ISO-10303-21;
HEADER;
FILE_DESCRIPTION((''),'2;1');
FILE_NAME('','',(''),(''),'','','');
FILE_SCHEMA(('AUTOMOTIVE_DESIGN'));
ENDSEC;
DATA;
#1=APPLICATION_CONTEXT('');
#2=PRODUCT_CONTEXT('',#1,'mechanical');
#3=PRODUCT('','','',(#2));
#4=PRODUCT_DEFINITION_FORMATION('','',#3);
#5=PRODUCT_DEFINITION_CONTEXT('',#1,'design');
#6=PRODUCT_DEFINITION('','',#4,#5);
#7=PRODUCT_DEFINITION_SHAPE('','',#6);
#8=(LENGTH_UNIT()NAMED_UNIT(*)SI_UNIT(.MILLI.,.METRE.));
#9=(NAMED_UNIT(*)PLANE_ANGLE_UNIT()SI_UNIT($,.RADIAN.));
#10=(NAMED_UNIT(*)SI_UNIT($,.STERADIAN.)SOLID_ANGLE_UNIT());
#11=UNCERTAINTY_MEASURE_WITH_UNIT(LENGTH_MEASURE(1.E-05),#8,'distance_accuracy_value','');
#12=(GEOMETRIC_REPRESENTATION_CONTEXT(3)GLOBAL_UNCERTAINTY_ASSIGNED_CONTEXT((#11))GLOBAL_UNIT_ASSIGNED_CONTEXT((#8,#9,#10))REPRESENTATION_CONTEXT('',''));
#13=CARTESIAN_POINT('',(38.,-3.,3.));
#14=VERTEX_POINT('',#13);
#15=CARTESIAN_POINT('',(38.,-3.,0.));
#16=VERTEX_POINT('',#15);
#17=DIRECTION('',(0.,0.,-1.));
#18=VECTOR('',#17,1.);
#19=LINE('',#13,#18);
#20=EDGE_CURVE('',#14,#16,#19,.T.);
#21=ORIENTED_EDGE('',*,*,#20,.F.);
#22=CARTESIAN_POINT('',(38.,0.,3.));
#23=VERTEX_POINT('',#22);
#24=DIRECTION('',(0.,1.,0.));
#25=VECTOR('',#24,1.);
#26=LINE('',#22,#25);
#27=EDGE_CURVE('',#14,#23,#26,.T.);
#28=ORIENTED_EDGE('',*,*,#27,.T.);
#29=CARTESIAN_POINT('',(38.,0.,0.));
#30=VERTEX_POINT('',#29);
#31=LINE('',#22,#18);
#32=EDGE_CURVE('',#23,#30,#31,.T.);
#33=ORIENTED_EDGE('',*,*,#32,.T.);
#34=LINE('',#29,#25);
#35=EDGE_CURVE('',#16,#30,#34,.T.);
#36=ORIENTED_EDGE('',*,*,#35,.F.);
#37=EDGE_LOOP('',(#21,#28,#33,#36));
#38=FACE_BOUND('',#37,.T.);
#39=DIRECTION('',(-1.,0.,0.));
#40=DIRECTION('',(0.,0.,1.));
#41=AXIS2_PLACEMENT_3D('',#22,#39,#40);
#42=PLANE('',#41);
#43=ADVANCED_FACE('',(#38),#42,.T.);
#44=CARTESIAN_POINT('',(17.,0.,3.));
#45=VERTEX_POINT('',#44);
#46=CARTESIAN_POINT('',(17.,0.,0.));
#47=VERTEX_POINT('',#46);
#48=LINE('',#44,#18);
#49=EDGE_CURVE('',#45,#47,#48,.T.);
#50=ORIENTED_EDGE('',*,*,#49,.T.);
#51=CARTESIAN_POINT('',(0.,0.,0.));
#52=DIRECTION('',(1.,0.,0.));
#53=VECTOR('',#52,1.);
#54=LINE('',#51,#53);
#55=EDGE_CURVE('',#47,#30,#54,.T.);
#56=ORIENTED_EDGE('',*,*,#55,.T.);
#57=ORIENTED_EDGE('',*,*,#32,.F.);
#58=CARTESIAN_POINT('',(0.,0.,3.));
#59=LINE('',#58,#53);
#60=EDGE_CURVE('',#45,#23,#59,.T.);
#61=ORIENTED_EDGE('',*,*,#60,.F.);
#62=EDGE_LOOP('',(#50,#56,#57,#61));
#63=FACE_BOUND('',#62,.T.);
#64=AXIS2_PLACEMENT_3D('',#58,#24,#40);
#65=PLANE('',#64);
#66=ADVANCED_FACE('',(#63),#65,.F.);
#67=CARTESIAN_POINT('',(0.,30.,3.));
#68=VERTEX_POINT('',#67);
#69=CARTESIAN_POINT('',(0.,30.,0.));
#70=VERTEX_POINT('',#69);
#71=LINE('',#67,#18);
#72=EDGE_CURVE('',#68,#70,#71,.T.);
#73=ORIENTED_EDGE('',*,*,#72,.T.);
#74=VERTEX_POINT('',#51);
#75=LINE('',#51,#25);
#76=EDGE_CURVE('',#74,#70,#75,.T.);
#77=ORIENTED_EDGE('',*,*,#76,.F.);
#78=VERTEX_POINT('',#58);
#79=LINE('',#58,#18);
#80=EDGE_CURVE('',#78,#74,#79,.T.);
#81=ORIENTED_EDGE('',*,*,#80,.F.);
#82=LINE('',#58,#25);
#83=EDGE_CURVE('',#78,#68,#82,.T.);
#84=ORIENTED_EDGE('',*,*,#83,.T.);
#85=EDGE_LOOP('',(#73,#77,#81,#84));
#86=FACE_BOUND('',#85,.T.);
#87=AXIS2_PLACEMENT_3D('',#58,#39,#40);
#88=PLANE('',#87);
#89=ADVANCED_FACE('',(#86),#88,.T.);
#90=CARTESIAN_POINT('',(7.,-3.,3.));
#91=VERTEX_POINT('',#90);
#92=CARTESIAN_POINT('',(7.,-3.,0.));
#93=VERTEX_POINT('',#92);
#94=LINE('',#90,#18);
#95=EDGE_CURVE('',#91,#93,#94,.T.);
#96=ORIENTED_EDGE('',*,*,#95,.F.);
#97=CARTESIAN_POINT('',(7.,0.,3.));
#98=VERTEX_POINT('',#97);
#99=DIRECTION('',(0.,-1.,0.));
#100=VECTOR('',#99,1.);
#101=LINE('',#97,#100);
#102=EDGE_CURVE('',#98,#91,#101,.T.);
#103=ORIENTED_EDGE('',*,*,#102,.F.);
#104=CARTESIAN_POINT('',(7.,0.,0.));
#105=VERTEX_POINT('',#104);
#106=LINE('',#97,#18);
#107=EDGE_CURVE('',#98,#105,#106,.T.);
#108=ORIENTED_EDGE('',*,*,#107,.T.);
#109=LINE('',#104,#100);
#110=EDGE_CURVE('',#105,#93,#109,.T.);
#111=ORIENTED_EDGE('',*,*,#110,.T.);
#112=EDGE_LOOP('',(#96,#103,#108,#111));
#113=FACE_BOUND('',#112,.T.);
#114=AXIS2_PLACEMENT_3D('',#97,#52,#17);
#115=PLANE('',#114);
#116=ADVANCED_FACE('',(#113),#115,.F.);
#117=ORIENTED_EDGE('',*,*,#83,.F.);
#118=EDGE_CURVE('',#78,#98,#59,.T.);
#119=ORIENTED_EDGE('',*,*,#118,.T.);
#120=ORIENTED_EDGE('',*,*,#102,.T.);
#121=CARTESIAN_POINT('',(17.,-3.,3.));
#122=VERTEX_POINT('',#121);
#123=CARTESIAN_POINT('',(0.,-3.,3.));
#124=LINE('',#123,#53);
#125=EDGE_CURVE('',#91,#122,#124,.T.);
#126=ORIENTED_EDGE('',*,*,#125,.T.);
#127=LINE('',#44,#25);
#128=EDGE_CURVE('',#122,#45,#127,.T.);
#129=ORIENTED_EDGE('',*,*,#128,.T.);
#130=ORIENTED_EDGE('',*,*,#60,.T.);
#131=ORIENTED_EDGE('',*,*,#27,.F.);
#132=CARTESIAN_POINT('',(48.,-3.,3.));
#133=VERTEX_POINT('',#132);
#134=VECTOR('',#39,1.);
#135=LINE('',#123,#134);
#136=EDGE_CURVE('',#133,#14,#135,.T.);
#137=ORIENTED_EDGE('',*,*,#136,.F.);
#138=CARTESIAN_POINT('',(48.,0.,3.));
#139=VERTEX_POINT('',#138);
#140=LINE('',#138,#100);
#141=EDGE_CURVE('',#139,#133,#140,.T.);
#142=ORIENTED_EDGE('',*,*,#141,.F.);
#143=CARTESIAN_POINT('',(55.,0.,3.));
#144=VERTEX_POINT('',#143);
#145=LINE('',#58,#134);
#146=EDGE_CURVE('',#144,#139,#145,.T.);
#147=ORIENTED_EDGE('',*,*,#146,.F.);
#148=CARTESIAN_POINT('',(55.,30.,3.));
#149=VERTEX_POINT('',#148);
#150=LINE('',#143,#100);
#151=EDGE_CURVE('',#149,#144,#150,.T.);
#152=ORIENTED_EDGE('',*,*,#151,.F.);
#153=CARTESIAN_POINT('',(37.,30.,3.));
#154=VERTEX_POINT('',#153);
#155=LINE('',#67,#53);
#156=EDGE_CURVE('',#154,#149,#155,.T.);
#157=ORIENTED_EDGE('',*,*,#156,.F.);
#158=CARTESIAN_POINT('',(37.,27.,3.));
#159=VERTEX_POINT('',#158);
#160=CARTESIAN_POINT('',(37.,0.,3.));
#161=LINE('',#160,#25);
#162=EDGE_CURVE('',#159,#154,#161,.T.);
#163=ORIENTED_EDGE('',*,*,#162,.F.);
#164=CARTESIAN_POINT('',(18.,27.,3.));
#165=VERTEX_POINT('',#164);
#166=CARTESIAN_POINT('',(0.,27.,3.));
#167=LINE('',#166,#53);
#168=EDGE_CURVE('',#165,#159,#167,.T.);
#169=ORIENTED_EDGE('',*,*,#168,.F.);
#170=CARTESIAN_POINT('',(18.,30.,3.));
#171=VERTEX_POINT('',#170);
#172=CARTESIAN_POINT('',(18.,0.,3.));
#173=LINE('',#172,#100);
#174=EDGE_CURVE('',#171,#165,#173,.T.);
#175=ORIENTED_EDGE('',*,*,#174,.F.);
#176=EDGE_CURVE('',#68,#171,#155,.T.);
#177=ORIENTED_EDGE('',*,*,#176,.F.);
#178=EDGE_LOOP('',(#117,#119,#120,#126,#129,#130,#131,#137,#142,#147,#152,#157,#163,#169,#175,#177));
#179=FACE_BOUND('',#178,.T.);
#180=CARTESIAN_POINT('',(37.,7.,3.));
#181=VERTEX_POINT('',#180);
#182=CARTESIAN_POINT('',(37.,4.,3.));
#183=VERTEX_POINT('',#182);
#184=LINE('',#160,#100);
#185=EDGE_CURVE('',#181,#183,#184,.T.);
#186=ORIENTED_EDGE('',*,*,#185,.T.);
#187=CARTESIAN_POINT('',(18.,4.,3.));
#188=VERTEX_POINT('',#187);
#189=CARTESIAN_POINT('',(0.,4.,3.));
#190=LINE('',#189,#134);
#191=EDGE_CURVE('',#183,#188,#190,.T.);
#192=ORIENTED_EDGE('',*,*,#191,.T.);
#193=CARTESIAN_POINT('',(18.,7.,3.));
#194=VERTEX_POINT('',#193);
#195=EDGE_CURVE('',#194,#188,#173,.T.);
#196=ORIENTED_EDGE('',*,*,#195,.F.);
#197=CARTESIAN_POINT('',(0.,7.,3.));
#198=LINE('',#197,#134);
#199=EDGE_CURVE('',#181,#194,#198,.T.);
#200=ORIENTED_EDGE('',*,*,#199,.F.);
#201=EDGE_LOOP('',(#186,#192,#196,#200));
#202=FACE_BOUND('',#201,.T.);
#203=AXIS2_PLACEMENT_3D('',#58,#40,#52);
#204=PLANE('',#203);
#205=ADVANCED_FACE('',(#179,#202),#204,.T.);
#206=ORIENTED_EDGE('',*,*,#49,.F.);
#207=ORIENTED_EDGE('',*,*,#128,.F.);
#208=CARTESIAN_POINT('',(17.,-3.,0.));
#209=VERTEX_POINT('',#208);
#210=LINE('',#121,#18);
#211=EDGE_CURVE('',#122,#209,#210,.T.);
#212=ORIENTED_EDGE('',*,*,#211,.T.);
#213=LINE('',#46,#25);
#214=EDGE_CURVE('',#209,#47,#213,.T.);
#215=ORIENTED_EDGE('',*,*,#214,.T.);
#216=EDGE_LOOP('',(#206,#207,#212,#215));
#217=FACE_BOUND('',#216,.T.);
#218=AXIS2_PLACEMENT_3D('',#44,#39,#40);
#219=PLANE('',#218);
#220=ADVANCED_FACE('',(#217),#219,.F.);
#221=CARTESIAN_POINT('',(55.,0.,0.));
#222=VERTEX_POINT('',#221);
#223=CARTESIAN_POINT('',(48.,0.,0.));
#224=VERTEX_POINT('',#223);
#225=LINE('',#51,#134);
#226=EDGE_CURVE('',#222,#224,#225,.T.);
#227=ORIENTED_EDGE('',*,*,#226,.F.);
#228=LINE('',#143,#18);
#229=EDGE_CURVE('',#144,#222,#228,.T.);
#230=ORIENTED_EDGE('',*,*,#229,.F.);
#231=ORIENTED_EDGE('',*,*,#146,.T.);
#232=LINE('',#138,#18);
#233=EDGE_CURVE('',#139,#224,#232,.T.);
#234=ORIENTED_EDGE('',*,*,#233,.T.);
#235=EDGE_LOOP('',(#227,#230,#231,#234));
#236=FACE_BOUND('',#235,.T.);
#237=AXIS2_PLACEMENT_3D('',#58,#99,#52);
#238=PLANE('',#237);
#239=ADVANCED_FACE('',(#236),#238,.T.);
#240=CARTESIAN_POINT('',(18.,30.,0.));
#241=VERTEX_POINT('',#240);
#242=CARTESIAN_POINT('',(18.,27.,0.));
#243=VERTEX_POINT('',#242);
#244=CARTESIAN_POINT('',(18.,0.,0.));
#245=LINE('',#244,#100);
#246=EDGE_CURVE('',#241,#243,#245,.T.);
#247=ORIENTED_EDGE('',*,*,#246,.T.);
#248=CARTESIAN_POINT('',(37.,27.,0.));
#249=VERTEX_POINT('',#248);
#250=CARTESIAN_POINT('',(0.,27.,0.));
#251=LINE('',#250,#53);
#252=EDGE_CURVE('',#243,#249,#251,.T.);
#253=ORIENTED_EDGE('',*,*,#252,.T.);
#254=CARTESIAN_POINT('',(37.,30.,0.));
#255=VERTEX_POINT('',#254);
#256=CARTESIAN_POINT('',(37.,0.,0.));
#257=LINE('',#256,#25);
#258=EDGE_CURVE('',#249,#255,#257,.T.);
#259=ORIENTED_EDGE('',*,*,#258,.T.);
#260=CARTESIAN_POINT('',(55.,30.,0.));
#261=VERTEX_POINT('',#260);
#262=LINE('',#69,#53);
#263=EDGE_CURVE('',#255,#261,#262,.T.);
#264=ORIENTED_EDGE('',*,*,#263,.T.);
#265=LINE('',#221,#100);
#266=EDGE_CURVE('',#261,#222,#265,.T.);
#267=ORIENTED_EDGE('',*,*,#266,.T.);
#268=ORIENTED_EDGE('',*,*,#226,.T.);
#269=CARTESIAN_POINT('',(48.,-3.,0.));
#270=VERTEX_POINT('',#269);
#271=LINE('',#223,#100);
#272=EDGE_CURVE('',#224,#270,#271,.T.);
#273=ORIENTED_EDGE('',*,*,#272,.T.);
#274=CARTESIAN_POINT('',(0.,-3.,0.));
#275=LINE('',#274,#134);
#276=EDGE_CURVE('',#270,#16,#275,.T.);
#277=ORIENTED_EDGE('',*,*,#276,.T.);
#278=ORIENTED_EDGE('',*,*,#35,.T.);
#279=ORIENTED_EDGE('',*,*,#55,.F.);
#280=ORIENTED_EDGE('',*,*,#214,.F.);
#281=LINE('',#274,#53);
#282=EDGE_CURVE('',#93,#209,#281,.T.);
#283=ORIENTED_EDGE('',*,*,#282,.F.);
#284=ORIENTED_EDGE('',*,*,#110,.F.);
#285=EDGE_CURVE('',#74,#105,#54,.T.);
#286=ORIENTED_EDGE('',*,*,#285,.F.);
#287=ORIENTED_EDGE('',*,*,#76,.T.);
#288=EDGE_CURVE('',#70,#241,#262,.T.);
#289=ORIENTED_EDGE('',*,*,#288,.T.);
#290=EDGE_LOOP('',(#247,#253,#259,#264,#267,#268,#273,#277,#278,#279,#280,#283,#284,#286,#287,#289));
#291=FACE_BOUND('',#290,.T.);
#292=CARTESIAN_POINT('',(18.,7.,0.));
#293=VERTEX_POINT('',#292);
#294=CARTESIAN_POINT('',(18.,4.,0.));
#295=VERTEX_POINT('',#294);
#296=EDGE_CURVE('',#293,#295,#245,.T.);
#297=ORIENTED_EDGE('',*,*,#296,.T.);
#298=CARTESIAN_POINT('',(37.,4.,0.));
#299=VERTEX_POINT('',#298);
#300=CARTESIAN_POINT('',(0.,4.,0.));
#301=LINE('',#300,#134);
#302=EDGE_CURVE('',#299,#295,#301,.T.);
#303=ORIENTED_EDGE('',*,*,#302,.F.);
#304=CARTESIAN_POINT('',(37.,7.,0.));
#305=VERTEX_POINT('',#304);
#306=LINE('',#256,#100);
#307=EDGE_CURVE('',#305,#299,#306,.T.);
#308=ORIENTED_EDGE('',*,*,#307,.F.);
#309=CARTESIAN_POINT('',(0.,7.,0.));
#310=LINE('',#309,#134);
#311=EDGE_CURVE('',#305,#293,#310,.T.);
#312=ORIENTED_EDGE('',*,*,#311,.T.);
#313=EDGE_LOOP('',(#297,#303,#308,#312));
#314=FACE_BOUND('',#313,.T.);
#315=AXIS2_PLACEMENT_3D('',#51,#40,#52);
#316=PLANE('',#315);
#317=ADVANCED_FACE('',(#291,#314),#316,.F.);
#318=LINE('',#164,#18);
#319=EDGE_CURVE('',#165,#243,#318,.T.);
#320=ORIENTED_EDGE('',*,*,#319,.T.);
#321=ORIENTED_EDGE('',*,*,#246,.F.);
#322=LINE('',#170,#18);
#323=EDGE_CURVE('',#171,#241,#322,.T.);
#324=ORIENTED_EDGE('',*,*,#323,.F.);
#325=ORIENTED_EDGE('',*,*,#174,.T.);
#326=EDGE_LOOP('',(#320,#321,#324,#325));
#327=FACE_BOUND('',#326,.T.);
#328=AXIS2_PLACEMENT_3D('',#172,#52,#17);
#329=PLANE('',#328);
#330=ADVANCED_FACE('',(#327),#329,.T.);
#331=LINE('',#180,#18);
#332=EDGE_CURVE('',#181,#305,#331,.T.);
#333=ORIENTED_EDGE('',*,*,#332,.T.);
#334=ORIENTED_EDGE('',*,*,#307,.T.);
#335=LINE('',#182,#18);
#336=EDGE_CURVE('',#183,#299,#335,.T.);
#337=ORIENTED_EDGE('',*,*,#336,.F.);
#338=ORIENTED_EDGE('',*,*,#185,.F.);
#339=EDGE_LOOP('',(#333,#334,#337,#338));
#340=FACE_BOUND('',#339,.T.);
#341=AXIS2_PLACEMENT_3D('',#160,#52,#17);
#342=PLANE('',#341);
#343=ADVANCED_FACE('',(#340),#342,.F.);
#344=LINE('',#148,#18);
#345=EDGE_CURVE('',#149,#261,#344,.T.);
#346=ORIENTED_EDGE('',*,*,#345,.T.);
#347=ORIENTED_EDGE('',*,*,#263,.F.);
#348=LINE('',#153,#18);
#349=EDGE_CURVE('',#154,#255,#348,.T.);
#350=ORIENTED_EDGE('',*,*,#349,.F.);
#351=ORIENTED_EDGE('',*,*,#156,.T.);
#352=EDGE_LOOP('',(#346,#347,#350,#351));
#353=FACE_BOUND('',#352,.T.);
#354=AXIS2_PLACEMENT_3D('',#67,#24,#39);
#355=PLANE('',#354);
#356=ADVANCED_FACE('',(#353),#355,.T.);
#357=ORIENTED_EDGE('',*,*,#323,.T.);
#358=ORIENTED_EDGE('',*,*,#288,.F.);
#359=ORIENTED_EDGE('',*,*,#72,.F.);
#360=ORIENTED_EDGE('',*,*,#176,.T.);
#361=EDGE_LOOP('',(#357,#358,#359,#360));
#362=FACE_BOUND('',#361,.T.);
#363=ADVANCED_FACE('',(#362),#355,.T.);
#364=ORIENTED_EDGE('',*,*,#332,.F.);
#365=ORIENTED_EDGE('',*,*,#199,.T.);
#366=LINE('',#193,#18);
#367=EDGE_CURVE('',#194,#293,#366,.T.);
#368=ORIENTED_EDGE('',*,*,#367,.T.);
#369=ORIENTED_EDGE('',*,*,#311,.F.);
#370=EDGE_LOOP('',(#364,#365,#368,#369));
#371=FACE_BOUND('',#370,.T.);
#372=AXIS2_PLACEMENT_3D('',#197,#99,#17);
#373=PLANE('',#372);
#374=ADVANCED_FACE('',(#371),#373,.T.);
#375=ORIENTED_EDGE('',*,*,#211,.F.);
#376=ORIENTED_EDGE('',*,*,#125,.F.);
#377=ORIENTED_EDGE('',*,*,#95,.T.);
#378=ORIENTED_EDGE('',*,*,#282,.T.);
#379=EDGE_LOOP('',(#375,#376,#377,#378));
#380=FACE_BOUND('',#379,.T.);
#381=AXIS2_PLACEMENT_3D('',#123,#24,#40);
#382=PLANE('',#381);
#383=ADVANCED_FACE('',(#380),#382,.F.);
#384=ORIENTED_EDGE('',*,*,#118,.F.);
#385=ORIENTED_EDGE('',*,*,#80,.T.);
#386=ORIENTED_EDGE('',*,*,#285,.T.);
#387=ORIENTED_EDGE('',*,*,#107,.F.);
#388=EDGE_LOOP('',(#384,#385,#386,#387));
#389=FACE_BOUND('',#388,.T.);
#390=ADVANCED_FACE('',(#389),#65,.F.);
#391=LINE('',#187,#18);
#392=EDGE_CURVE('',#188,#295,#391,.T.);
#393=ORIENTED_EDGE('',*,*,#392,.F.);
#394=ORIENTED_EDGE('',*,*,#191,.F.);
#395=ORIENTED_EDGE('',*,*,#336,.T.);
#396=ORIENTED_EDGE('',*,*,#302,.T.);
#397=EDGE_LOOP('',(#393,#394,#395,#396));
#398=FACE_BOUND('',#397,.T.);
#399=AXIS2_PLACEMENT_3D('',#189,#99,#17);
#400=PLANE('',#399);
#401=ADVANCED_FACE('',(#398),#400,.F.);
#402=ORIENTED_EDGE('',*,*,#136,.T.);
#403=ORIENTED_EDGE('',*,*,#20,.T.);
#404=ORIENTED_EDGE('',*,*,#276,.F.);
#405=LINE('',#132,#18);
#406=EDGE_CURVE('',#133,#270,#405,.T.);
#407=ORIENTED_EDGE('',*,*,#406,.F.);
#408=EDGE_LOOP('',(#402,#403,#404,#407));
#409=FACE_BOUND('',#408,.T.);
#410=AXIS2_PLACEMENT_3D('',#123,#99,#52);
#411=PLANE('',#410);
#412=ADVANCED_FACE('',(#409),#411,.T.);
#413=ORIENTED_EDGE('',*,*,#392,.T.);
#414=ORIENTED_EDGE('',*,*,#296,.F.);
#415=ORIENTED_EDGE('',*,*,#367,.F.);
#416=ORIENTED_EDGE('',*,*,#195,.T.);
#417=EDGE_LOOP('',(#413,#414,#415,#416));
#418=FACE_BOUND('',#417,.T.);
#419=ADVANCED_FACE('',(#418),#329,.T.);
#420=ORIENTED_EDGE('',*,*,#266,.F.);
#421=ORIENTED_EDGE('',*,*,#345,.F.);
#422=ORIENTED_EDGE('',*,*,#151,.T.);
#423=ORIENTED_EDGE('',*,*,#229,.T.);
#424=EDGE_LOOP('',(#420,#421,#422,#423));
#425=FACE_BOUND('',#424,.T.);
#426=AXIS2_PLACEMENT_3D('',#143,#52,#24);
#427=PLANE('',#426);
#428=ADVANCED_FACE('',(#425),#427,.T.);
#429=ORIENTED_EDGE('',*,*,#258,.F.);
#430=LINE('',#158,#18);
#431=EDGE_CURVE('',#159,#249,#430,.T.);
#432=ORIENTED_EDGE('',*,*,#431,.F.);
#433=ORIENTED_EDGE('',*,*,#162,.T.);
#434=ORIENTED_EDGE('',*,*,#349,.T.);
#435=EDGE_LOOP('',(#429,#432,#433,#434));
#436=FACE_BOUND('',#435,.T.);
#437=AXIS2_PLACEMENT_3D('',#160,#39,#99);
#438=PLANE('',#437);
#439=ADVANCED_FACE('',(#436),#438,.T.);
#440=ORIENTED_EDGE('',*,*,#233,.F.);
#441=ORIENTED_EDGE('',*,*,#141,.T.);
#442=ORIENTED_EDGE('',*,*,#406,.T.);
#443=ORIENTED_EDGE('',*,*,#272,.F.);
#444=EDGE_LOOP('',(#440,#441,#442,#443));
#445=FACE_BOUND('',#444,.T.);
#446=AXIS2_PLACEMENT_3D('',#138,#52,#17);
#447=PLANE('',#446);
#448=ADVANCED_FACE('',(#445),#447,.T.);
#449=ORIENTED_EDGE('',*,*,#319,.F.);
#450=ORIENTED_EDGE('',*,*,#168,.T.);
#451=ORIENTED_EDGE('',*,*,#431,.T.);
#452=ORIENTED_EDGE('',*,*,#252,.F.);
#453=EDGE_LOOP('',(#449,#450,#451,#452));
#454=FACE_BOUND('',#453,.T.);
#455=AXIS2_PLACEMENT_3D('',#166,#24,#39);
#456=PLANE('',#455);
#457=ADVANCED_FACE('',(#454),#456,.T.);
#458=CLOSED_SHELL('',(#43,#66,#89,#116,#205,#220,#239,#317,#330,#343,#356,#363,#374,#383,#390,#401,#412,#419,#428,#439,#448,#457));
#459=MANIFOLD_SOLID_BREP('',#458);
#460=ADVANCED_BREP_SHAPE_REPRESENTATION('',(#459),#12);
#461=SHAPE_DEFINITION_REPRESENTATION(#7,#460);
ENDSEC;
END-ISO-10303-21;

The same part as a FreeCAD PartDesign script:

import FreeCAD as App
import Part
import Sketcher
from FreeCAD import Vector


def add_polygon(sketch, points):
    """Adds a closed chain of lines whose ends are joined by coincident constraints."""
    first, n = sketch.GeometryCount, len(points)
    for a, b in zip(points, points[1:] + points[:1]):
        sketch.addGeometry(Part.LineSegment(App.Vector(*a, 0), App.Vector(*b, 0)), False)
    for i in range(n):
        sketch.addConstraint(Sketcher.Constraint("Coincident", first + i, 2, first + (i + 1) % n, 1))

doc = App.newDocument("Part")
body = doc.addObject("PartDesign::Body", "Body")

# Sketch on XY plane
sketch1 = body.newObject("Sketcher::SketchObject", "Sketch")
sketch1.AttachmentSupport = (doc.getObject("XY_Plane"), [""])
sketch1.MapMode = "FlatFace"
add_polygon(sketch1, [(0, 30), (0, 0), (7, 0), (7, -3), (17, -3), (17, 0), (38, 0), (38, -3), (48, -3), (48, 0), (55, 0), (55, 30), (37, 30), (37, 27), (18, 27), (18, 30)])  # lines 0-15
add_polygon(sketch1, [(18, 4), (18, 7), (37, 7), (37, 4)])  # lines 16-19
sketch1.addConstraint([
    Sketcher.Constraint("Vertical", 0),
    Sketcher.Constraint("Horizontal", 1),
    Sketcher.Constraint("Vertical", 2),
    Sketcher.Constraint("Horizontal", 3),
    Sketcher.Constraint("Vertical", 4),
    Sketcher.Constraint("Horizontal", 5),
    Sketcher.Constraint("Vertical", 6),
    Sketcher.Constraint("Horizontal", 7),
    Sketcher.Constraint("Vertical", 8),
    Sketcher.Constraint("Horizontal", 9),
    Sketcher.Constraint("Vertical", 10),
    Sketcher.Constraint("Horizontal", 11),
    Sketcher.Constraint("Vertical", 12),
    Sketcher.Constraint("Horizontal", 13),
    Sketcher.Constraint("Vertical", 14),
    Sketcher.Constraint("Horizontal", 15),
    Sketcher.Constraint("Vertical", 16),
    Sketcher.Constraint("Horizontal", 17),
    Sketcher.Constraint("Vertical", 18),
    Sketcher.Constraint("Horizontal", 19),
    Sketcher.Constraint("Coincident", 0, 2, -1, 1),
    Sketcher.Constraint("PointOnObject", 4, 2, -1),
    Sketcher.Constraint("PointOnObject", 8, 2, -1),
    Sketcher.Constraint("Horizontal", 3, 2, 6, 2),
    Sketcher.Constraint("Horizontal", 11, 2, 14, 2),
    Sketcher.Constraint("Vertical", 14, 2, 16, 2),
    Sketcher.Constraint("Vertical", 12, 2, 17, 2),
    Sketcher.Constraint("Equal", 3, 7),
    Sketcher.Constraint("Equal", 1, 9),
    Sketcher.Constraint("Equal", 11, 15),
    Sketcher.Constraint("Equal", 8, 12),
    Sketcher.Constraint("Equal", 14, 16),
    Sketcher.Constraint("DistanceX", 1, 1, 1, 2, 7.0),
    Sketcher.Constraint("DistanceX", 3, 1, 3, 2, 10.0),
    Sketcher.Constraint("DistanceX", 5, 1, 5, 2, 21.0),
    Sketcher.Constraint("DistanceX", 11, 2, 11, 1, 18.0),
    Sketcher.Constraint("DistanceY", 0, 2, 0, 1, 30.0),
    Sketcher.Constraint("DistanceY", 2, 2, 2, 1, 3.0),
    Sketcher.Constraint("DistanceY", -1, 1, 16, 2, 7.0),
])
pad1 = body.newObject("PartDesign::Pad", "Pad")
pad1.Profile = sketch1
pad1.Length = 3

doc.recompute()
